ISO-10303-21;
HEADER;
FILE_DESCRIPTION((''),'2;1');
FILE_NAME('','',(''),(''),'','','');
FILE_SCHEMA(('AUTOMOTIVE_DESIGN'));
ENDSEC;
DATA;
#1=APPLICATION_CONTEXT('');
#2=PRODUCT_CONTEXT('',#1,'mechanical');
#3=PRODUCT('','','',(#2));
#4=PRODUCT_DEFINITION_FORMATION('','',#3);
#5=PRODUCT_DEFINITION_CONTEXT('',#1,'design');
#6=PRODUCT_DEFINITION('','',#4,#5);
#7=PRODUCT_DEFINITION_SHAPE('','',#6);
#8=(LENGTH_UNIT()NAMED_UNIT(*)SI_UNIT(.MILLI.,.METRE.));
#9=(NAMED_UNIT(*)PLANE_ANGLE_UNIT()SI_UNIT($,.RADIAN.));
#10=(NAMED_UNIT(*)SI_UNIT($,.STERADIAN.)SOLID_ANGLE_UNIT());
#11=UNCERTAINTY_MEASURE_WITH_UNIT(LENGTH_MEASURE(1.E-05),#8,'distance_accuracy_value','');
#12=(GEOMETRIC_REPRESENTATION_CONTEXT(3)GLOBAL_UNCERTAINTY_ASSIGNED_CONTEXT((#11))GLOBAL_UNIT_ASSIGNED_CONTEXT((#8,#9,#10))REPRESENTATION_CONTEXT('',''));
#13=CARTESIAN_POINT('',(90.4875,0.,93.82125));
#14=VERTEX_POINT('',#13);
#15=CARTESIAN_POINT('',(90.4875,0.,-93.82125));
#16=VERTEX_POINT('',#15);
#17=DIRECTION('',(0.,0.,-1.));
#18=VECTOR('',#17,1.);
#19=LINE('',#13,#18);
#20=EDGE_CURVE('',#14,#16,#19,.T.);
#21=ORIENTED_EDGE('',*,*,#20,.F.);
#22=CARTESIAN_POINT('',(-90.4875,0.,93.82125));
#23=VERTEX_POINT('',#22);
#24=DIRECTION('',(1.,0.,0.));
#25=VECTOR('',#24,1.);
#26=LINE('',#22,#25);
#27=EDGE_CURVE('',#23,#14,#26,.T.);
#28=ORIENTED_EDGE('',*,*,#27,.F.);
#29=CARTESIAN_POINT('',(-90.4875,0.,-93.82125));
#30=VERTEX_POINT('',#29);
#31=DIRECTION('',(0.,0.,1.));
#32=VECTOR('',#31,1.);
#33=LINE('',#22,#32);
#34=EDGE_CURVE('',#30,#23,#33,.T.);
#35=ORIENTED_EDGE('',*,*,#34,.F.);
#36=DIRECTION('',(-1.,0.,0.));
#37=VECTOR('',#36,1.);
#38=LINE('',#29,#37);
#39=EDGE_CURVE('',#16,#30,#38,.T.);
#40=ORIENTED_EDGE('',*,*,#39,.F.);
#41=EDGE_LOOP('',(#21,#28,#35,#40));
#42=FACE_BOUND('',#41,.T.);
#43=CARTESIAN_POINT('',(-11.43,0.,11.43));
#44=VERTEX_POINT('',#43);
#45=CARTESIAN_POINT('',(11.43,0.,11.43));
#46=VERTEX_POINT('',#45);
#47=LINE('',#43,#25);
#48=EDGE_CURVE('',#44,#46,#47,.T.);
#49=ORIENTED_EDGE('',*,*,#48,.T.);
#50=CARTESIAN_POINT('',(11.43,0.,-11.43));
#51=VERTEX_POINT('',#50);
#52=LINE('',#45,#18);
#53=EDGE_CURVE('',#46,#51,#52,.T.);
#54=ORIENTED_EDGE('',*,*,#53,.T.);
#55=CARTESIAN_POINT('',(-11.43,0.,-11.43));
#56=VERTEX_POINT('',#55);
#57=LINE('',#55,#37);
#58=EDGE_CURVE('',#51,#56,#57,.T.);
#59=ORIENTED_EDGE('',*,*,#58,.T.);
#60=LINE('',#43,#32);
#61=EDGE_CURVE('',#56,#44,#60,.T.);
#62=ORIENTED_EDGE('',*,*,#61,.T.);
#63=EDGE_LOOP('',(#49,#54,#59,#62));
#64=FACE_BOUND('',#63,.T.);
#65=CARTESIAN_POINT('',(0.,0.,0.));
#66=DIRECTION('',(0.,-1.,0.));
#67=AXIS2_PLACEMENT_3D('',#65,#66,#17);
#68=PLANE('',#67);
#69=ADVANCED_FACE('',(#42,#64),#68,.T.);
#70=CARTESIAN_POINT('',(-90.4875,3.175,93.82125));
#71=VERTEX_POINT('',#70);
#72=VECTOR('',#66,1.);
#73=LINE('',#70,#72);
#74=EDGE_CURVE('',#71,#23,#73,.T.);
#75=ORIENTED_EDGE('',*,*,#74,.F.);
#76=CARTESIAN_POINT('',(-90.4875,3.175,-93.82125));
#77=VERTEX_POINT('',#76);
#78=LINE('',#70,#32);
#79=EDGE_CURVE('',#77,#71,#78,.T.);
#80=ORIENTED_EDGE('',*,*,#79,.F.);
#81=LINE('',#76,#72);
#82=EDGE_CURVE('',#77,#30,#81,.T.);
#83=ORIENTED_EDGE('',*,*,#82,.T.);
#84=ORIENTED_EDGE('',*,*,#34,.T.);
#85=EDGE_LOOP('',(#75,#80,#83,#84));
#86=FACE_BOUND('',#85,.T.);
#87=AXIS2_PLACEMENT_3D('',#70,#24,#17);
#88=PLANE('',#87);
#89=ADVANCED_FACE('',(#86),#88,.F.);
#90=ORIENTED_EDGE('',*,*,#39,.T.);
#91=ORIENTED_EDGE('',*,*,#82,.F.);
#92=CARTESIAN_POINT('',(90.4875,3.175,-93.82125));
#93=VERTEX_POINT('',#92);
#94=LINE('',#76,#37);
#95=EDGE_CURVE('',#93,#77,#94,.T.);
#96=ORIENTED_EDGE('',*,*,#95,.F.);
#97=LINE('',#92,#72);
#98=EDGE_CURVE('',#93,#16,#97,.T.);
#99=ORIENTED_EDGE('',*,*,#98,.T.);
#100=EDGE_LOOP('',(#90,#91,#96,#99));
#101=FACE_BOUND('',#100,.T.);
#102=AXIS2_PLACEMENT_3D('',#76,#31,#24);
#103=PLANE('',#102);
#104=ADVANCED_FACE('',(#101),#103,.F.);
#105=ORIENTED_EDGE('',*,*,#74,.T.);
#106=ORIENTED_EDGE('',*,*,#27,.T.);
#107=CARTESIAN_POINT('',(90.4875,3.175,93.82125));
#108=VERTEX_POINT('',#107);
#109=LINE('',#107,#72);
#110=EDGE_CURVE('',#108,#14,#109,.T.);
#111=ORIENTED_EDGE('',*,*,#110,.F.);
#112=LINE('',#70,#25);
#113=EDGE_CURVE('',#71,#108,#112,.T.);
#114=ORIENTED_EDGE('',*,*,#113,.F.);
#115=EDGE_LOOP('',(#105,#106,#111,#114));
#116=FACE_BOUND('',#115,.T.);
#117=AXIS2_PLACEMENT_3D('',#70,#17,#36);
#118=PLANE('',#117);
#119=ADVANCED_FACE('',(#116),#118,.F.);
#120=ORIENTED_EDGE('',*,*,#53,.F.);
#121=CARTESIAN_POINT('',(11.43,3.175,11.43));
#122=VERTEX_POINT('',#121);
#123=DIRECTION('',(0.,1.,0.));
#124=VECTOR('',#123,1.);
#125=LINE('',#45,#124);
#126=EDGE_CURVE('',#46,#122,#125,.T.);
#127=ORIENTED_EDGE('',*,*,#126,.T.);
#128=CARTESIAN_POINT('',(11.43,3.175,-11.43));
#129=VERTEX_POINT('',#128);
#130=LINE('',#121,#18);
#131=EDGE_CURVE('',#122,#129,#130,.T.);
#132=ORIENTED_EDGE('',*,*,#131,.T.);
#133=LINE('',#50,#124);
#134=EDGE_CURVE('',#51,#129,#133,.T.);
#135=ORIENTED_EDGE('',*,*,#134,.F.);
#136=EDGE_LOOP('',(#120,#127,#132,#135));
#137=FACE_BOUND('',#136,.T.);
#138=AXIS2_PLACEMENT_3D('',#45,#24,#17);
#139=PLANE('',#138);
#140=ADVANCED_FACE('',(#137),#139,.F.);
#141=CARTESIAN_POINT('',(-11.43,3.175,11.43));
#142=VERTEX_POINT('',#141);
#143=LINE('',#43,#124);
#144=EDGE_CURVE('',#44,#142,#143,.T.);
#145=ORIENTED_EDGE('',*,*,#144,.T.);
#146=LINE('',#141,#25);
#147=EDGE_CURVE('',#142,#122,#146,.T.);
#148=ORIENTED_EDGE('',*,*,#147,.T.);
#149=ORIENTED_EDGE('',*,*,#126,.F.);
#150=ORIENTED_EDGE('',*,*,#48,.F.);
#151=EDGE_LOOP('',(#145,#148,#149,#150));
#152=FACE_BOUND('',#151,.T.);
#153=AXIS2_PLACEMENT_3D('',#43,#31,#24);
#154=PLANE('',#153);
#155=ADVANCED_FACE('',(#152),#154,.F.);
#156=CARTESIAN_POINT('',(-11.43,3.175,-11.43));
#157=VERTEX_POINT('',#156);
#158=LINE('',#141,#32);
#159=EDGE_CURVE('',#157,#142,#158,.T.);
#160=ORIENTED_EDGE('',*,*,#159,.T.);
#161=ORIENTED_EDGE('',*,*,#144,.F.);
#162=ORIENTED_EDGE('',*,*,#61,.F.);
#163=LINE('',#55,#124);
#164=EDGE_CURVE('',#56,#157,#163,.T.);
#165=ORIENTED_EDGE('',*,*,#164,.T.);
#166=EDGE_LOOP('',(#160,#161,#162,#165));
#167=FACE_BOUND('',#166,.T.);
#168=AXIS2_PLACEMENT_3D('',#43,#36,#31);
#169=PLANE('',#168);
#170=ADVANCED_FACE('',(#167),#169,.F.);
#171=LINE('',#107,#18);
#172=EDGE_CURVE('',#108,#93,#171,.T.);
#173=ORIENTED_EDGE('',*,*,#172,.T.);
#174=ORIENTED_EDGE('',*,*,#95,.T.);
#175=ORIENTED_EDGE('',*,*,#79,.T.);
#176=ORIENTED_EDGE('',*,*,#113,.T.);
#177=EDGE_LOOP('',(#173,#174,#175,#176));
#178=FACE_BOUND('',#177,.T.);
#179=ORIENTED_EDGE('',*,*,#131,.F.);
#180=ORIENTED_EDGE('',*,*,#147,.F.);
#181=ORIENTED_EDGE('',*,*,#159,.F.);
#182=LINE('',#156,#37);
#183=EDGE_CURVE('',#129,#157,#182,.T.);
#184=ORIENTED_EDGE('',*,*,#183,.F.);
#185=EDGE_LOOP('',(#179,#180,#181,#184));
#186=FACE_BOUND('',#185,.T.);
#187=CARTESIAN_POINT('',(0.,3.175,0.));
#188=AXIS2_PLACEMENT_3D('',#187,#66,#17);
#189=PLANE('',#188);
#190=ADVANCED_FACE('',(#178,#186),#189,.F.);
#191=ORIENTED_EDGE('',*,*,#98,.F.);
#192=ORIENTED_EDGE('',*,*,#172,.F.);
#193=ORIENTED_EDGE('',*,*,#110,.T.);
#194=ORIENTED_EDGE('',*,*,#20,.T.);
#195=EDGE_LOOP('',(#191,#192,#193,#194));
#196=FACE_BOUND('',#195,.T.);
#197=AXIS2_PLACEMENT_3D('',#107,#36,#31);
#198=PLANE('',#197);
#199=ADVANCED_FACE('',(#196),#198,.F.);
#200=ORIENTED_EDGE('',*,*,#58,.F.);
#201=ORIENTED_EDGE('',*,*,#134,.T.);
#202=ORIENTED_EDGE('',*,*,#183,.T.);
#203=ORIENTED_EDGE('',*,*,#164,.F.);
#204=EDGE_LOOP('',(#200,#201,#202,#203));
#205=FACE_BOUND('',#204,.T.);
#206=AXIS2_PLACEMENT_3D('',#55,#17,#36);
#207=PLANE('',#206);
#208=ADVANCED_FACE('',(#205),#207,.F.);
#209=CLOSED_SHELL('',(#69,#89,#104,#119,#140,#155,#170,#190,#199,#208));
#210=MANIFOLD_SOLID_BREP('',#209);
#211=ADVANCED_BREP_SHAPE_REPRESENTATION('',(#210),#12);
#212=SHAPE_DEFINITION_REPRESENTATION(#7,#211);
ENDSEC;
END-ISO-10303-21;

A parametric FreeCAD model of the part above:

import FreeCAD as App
import Part
import Sketcher
from FreeCAD import Vector
Q = App.Units.Quantity

doc = App.newDocument("Part")
params = doc.addObject("Spreadsheet::Sheet", "Params")
for row, (alias, value) in enumerate([
    ("sketch1_width", "7.125 in"),
    ("pad1_length", "0.125 in"),
    ("sketch2_width", "0.9 in"),
    ("pocket1_length", "0.125 in"),
], start=1):
    params.set(f"A{row}", alias)
    params.set(f"B{row}", "=" + value)
    params.setAlias(f"B{row}", alias)

body = doc.addObject("PartDesign::Body", "Body")

sketch1 = doc.addObject("Sketcher::SketchObject", "Sketch")
body.addObject(sketch1)
sketch1.AttachmentSupport = (doc.XZ_Plane, [""])
sketch1.MapMode = "FlatFace"
sketch1.addGeometry([
    Part.LineSegment(Vector(-90.4875, -93.82125, 0), Vector(-90.4875, 93.82125, 0)),
    Part.LineSegment(Vector(-90.4875, 93.82125, 0), Vector(90.4875, 93.82125, 0)),
    Part.LineSegment(Vector(90.4875, 93.82125, 0), Vector(90.4875, -93.82125, 0)),
    Part.LineSegment(Vector(90.4875, -93.82125, 0), Vector(-90.4875, -93.82125, 0)),
], False)
sketch1.addConstraint([
    Sketcher.Constraint("Coincident", 0, 2, 1, 1),
    Sketcher.Constraint("Coincident", 1, 2, 2, 1),
    Sketcher.Constraint("Coincident", 2, 2, 3, 1),
    Sketcher.Constraint("Coincident", 3, 2, 0, 1),
    Sketcher.Constraint("Vertical", 0),
    Sketcher.Constraint("Horizontal", 1),
    Sketcher.Constraint("Vertical", 2),
    Sketcher.Constraint("Horizontal", 3),
    Sketcher.Constraint("Symmetric", 0, 2, 2, 2, -1, 1),
    Sketcher.Constraint("DistanceX", 1, 1, 1, 2, Q("7.125 in")),
    Sketcher.Constraint("DistanceY", 0, 1, 0, 2, Q("7.3875 in")),
])
sketch1.setExpression("Constraints[9]", "Params.sketch1_width")
pad1 = doc.addObject("PartDesign::Pad", "Pad")
body.addObject(pad1)
pad1.Profile = sketch1
pad1.setExpression("Length", "Params.pad1_length")
pad1.Reversed = True

sketch2 = doc.addObject("Sketcher::SketchObject", "Sketch001")
body.addObject(sketch2)
sketch2.AttachmentSupport = (doc.XZ_Plane, [""])
sketch2.MapMode = "FlatFace"
sketch2.AttachmentOffset = App.Placement(Vector(0, 0, -0.125 * 25.4), App.Rotation())
sketch2.addGeometry([
    Part.LineSegment(Vector(-11.43, -11.43, 0), Vector(-11.43, 11.43, 0)),
    Part.LineSegment(Vector(-11.43, 11.43, 0), Vector(11.43, 11.43, 0)),
    Part.LineSegment(Vector(11.43, 11.43, 0), Vector(11.43, -11.43, 0)),
    Part.LineSegment(Vector(11.43, -11.43, 0), Vector(-11.43, -11.43, 0)),
], False)
sketch2.addConstraint([
    Sketcher.Constraint("Coincident", 0, 2, 1, 1),
    Sketcher.Constraint("Coincident", 1, 2, 2, 1),
    Sketcher.Constraint("Coincident", 2, 2, 3, 1),
    Sketcher.Constraint("Coincident", 3, 2, 0, 1),
    Sketcher.Constraint("Vertical", 0),
    Sketcher.Constraint("Horizontal", 1),
    Sketcher.Constraint("Vertical", 2),
    Sketcher.Constraint("Horizontal", 3),
    Sketcher.Constraint("Symmetric", 0, 2, 2, 2, -1, 1),
    Sketcher.Constraint("Equal", 3, 0),
    Sketcher.Constraint("DistanceX", 1, 1, 1, 2, Q("0.9 in")),
])
sketch2.setExpression("Constraints[10]", "Params.sketch2_width")
pocket1 = doc.addObject("PartDesign::Pocket", "Pocket")
body.addObject(pocket1)
pocket1.Profile = sketch2
pocket1.setExpression("Length", "Params.pocket1_length")
pocket1.Reversed = True

doc.recompute()
